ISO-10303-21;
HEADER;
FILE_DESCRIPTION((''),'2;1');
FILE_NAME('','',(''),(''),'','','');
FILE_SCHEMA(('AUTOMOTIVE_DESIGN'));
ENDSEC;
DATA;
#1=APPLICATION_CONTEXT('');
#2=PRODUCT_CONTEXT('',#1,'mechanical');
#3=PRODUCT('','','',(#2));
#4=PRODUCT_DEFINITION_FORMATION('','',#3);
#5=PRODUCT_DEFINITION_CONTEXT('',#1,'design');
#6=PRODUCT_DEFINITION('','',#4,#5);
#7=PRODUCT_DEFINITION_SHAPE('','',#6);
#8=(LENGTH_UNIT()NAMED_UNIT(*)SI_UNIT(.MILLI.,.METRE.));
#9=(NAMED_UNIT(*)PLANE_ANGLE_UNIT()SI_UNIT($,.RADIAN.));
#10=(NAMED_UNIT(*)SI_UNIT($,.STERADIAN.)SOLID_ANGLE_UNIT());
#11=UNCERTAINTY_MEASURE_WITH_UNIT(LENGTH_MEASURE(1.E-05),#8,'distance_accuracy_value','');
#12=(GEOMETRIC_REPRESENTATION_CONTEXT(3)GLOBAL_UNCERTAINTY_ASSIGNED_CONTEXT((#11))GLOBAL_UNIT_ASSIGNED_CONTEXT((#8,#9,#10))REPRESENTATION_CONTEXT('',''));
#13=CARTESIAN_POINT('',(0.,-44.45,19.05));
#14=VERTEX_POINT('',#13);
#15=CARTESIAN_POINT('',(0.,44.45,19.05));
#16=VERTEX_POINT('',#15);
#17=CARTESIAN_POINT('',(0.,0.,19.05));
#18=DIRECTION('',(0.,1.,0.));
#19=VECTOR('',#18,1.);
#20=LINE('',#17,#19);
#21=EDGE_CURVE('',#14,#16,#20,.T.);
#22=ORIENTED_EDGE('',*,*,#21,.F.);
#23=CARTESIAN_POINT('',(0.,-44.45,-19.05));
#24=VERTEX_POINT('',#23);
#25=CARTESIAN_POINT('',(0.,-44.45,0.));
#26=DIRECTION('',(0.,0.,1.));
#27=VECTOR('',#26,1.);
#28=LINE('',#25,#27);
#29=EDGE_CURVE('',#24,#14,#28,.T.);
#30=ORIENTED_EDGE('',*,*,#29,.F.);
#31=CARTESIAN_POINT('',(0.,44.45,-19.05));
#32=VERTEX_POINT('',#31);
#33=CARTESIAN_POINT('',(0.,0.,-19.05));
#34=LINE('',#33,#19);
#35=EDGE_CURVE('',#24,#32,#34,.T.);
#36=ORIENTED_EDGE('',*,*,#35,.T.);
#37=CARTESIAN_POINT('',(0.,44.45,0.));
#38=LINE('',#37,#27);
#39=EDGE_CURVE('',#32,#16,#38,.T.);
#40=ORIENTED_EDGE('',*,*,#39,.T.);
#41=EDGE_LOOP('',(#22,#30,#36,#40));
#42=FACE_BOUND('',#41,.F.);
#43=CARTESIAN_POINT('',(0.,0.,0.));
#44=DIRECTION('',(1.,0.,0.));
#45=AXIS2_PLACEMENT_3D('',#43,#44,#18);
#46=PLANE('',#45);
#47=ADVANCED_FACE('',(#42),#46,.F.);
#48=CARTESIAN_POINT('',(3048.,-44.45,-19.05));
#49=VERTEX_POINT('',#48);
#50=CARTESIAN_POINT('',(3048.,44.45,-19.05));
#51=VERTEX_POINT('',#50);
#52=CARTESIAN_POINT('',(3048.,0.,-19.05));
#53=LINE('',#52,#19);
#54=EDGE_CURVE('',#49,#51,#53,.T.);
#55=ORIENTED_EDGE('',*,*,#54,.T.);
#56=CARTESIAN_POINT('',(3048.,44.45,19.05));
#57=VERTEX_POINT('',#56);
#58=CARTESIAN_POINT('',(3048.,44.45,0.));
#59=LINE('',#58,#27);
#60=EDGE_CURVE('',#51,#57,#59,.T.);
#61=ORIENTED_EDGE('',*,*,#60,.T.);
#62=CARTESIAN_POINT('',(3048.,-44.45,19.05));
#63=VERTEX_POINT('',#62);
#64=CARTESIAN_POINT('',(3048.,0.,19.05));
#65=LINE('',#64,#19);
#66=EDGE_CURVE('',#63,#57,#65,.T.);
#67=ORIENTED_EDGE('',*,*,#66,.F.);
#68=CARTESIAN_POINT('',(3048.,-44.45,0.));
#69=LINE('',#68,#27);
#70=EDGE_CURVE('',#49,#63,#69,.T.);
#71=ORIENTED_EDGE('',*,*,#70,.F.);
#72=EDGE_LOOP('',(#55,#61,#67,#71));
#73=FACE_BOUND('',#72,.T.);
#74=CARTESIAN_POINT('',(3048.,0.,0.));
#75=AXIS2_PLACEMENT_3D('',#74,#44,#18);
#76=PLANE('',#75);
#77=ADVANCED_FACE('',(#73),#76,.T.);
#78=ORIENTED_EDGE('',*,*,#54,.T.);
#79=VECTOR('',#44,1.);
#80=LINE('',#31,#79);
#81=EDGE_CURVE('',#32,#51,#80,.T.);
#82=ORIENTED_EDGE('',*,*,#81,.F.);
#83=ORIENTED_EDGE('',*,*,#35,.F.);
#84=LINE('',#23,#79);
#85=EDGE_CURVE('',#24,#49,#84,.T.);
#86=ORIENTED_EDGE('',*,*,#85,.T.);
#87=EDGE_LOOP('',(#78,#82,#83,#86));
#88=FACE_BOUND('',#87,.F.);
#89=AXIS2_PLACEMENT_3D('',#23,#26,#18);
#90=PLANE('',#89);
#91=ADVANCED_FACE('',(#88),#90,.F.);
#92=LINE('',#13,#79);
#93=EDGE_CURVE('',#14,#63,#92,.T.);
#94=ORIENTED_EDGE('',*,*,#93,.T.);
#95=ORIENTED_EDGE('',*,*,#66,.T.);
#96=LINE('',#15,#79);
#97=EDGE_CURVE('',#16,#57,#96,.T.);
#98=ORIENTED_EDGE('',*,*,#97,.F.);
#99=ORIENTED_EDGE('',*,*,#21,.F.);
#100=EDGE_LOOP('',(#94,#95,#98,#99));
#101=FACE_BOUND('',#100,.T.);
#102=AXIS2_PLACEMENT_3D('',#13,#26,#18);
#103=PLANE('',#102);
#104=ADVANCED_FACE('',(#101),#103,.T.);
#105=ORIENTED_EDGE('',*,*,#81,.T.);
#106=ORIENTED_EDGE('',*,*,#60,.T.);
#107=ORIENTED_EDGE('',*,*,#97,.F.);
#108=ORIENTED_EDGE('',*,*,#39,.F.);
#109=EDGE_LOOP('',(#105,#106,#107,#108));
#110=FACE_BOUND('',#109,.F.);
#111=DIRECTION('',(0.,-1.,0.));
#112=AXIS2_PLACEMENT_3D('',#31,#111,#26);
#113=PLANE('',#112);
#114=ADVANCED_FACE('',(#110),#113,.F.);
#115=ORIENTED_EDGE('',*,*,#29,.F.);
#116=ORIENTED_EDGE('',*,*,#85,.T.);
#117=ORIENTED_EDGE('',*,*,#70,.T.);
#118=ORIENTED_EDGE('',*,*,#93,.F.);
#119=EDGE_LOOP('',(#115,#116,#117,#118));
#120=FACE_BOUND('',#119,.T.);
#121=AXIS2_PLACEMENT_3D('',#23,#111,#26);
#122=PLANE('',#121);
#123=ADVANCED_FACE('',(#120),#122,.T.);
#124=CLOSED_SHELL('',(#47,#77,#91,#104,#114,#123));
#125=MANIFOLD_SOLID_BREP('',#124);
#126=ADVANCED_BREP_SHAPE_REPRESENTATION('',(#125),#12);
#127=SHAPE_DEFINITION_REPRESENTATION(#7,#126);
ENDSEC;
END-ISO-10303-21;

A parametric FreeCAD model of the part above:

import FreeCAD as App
import Part
import Sketcher

V = App.Vector
Q = App.Units.Quantity


def add_polygon(sketch, points):
    """Adds a closed chain of lines whose ends are joined by coincident constraints."""
    first, n = sketch.GeometryCount, len(points)
    for a, b in zip(points, points[1:] + points[:1]):
        sketch.addGeometry(Part.LineSegment(App.Vector(*a, 0), App.Vector(*b, 0)), False)
    for i in range(n):
        sketch.addConstraint(Sketcher.Constraint("Coincident", first + i, 2, first + (i + 1) % n, 1))

doc = App.newDocument("Part")
body = doc.addObject("PartDesign::Body", "Body")

# Sketch on YZ plane
sketch1 = body.newObject("Sketcher::SketchObject", "Sketch")
sketch1.AttachmentSupport = (doc.getObject("YZ_Plane"), [""])
sketch1.MapMode = "FlatFace"
add_polygon(sketch1, [(-44.45, 19.05), (-44.45, -19.05), (44.45, -19.05), (44.45, 19.05)])  # lines 0-3
sketch1.addConstraint(Sketcher.Constraint("Vertical", 0))
sketch1.addConstraint(Sketcher.Constraint("Horizontal", 1))
sketch1.addConstraint(Sketcher.Constraint("Vertical", 2))
sketch1.addConstraint(Sketcher.Constraint("Horizontal", 3))
sketch1.addConstraint(Sketcher.Constraint("Symmetric", 0, 2, 2, 2, -1, 1))
sketch1.addConstraint(Sketcher.Constraint("DistanceX", 1, 1, 1, 2, Q("3.5 in")))
sketch1.addConstraint(Sketcher.Constraint("DistanceY", 0, 2, 0, 1, Q("1.5 in")))
pad1 = body.newObject("PartDesign::Pad", "Pad")
pad1.Profile = sketch1
pad1.Length = Q("120 in")

doc.recompute()
